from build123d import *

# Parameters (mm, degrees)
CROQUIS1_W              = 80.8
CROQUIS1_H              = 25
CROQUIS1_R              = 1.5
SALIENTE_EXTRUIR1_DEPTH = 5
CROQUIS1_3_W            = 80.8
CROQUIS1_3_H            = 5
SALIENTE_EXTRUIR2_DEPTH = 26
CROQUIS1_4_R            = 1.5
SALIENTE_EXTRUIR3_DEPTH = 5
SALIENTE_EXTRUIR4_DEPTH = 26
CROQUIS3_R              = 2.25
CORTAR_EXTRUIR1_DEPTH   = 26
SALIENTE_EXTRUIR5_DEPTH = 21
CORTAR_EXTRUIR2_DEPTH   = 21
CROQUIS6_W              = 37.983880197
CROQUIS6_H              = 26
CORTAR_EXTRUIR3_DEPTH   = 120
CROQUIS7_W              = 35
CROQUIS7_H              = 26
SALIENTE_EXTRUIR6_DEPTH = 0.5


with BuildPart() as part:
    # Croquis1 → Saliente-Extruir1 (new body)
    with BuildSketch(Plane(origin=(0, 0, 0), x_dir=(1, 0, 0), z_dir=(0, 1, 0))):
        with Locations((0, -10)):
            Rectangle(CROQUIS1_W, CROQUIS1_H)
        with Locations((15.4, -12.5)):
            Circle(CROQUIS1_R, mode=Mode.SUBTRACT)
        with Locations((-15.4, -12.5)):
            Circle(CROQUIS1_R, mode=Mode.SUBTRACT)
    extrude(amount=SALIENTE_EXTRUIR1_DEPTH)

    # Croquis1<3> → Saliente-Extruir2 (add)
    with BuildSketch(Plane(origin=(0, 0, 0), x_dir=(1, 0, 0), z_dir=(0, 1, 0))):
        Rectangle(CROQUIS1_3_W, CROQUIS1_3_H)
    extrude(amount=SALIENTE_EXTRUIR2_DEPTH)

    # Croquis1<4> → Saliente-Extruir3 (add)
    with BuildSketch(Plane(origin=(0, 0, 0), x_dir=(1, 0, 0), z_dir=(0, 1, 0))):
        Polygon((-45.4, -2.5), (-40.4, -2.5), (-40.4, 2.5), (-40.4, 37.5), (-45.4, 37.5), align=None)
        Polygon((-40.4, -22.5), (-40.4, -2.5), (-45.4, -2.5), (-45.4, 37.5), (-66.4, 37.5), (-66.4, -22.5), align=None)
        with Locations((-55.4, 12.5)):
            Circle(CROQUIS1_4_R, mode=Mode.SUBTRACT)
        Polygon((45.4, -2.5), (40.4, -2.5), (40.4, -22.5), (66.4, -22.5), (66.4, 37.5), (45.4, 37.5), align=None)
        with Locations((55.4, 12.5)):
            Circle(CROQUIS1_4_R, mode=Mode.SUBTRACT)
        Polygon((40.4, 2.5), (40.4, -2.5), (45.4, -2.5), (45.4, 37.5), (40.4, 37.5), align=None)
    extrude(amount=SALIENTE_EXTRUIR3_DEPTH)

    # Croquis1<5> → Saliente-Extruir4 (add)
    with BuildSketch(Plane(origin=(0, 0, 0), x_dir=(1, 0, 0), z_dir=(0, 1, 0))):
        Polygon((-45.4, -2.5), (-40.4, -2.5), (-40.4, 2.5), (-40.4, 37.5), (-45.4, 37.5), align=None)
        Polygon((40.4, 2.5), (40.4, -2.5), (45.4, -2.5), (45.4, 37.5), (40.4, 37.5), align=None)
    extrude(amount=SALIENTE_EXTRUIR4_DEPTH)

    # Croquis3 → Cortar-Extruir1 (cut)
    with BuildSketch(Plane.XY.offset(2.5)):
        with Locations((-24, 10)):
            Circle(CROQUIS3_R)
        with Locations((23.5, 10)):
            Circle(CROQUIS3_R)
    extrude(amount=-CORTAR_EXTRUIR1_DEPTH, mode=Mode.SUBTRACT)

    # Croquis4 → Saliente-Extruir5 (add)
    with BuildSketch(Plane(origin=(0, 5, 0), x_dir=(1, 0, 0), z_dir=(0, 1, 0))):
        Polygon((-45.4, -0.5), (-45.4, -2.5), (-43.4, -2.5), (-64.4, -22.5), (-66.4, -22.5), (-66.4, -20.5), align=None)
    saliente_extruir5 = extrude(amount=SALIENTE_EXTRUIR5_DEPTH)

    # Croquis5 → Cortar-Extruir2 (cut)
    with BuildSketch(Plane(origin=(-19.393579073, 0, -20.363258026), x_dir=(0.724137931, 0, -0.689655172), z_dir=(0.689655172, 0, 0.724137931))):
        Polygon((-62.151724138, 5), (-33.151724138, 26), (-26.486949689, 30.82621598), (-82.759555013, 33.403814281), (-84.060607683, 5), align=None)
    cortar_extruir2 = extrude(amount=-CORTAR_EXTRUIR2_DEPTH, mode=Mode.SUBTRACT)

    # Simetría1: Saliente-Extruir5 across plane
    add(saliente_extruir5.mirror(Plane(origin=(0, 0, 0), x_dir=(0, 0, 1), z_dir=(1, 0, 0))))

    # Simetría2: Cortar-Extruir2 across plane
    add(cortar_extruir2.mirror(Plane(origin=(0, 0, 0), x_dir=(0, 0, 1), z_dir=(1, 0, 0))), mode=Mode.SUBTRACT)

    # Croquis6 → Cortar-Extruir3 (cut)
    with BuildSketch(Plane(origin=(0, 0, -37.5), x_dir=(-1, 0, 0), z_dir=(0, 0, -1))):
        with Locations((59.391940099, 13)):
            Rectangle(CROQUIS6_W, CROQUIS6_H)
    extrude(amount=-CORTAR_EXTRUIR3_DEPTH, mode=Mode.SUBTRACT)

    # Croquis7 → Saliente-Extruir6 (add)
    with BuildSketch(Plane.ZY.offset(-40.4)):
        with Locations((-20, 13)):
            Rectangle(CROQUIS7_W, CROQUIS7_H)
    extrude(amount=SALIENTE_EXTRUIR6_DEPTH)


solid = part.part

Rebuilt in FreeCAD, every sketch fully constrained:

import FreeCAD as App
import Part
import Sketcher

V = App.Vector

doc = App.newDocument("Part")
body = doc.addObject("PartDesign::Body", "Body")

sketch1 = body.newObject("Sketcher::SketchObject", "Sketch")
sketch1.AttachmentSupport = (doc.getObject("XZ_Plane"), [""])
sketch1.MapMode = "FlatFace"
sketch1.addGeometry([
    Part.LineSegment(V(-40.4, -2.5, 0), V(-40.4, 22.5, 0)),
    Part.LineSegment(V(-40.4, 22.5, 0), V(40.4, 22.5, 0)),
    Part.LineSegment(V(40.4, 22.5, 0), V(40.4, -2.5, 0)),
    Part.LineSegment(V(40.4, -2.5, 0), V(-40.4, -2.5, 0)),
    Part.Circle(V(-15.4, 12.5, 0), V(0, 0, 1), 1.5),
    Part.Circle(V(15.4, 12.5, 0), V(0, 0, 1), 1.5),
], False)
sketch1.addConstraint([
    Sketcher.Constraint("Coincident", 0, 2, 1, 1),
    Sketcher.Constraint("Coincident", 1, 2, 2, 1),
    Sketcher.Constraint("Coincident", 2, 2, 3, 1),
    Sketcher.Constraint("Coincident", 3, 2, 0, 1),
    Sketcher.Constraint("Vertical", 0),
    Sketcher.Constraint("Horizontal", 1),
    Sketcher.Constraint("Vertical", 2),
    Sketcher.Constraint("Horizontal", 3),
    Sketcher.Constraint("Equal", 4, 5),
    Sketcher.Constraint("Symmetric", 4, 3, 5, 3, -2),
    Sketcher.Constraint("Diameter", 4, 3.0),
    Sketcher.Constraint("DistanceY", 0, 1, 0, 2, 25.0),
    Sketcher.Constraint("DistanceX", 1, 1, 1, 2, 80.8),
    Sketcher.Constraint("DistanceX", 0, 2, 4, 3, 25.0),
    Sketcher.Constraint("DistanceY", 4, 3, 0, 2, 10.0),
    Sketcher.Constraint("DistanceX", 5, 3, 1, 2, 25.0),
    Sketcher.Constraint("DistanceY", -1, 1, 4, 3, 12.5),
])
pad1 = body.newObject("PartDesign::Pad", "Pad")
pad1.Profile = sketch1
pad1.Length = 5
pad1.Reversed = True

sketch2 = body.newObject("Sketcher::SketchObject", "Sketch001")
sketch2.AttachmentSupport = (doc.getObject("XZ_Plane"), [""])
sketch2.MapMode = "FlatFace"
sketch2.addGeometry([
    Part.LineSegment(V(-40, -2, 0), V(-40, 2, 0)),
    Part.LineSegment(V(-40, 2, 0), V(40, 2, 0)),
    Part.LineSegment(V(40, 2, 0), V(40, -2, 0)),
    Part.LineSegment(V(40, -2, 0), V(-40, -2, 0)),
], False)
sketch2.addConstraint([
    Sketcher.Constraint("Coincident", 0, 2, 1, 1),
    Sketcher.Constraint("Coincident", 1, 2, 2, 1),
    Sketcher.Constraint("Coincident", 2, 2, 3, 1),
    Sketcher.Constraint("Coincident", 3, 2, 0, 1),
    Sketcher.Constraint("Vertical", 0),
    Sketcher.Constraint("Horizontal", 1),
    Sketcher.Constraint("Vertical", 2),
    Sketcher.Constraint("Horizontal", 3),
    Sketcher.Constraint("Symmetric", 0, 2, 2, 2, -1, 1),
    Sketcher.Constraint("DistanceY", 0, 1, 0, 2, 5.0),
    Sketcher.Constraint("DistanceX", 1, 1, 1, 2, 80.8),
])
pad2 = body.newObject("PartDesign::Pad", "Pad001")
pad2.Profile = sketch2
pad2.Length = 26
pad2.Reversed = True

sketch3 = body.newObject("Sketcher::SketchObject", "Sketch002")
sketch3.AttachmentSupport = (doc.getObject("XZ_Plane"), [""])
sketch3.MapMode = "FlatFace"
sketch3.addGeometry([
    Part.LineSegment(V(-40.4, -37.5, 0), V(-66.4, -37.5, 0)),
    Part.LineSegment(V(-66.4, -37.5, 0), V(-66.4, 22.5, 0)),
    Part.LineSegment(V(-66.4, 22.5, 0), V(-40.4, 22.5, 0)),
    Part.LineSegment(V(-40.4, 22.5, 0), V(-40.4, -37.5, 0)),
    Part.Circle(V(-55.4, -12.5, 0), V(0, 0, 1), 1.5),
    Part.LineSegment(V(40.4, 22.5, 0), V(66.4, 22.5, 0)),
    Part.LineSegment(V(66.4, 22.5, 0), V(66.4, -37.5, 0)),
    Part.LineSegment(V(66.4, -37.5, 0), V(40.4, -37.5, 0)),
    Part.LineSegment(V(40.4, -37.5, 0), V(40.4, 22.5, 0)),
    Part.Circle(V(55.4, -12.5, 0), V(0, 0, 1), 1.5),
], False)
sketch3.addConstraint([
    Sketcher.Constraint("Coincident", 0, 2, 1, 1),
    Sketcher.Constraint("Coincident", 1, 2, 2, 1),
    Sketcher.Constraint("Coincident", 2, 2, 3, 1),
    Sketcher.Constraint("Coincident", 3, 2, 0, 1),
    Sketcher.Constraint("Coincident", 5, 2, 6, 1),
    Sketcher.Constraint("Coincident", 6, 2, 7, 1),
    Sketcher.Constraint("Coincident", 7, 2, 8, 1),
    Sketcher.Constraint("Coincident", 8, 2, 5, 1),
    Sketcher.Constraint("Horizontal", 0),
    Sketcher.Constraint("Vertical", 1),
    Sketcher.Constraint("Horizontal", 2),
    Sketcher.Constraint("Vertical", 3),
    Sketcher.Constraint("Horizontal", 5),
    Sketcher.Constraint("Vertical", 6),
    Sketcher.Constraint("Horizontal", 7),
    Sketcher.Constraint("Vertical", 8),
    Sketcher.Constraint("Equal", 4, 9),
    Sketcher.Constraint("Symmetric", 4, 3, 9, 3, -2),
    Sketcher.Constraint("Symmetric", 1, 2, 5, 2, -2),
    Sketcher.Constraint("Symmetric", 3, 2, 7, 2, -2),
    Sketcher.Constraint("Diameter", 4, 3.0),
    Sketcher.Constraint("DistanceX", 0, 2, 0, 1, 26.0),
    Sketcher.Constraint("DistanceY", 1, 1, 1, 2, 60.0),
    Sketcher.Constraint("DistanceX", 0, 2, 4, 3, 11.0),
    Sketcher.Constraint("DistanceY", 0, 2, 4, 3, 25.0),
    Sketcher.Constraint("DistanceX", 4, 3, -1, 1, 55.4),
    Sketcher.Constraint("DistanceY", 4, 3, -1, 1, 12.5),
])
pad3 = body.newObject("PartDesign::Pad", "Pad002")
pad3.Profile = sketch3
pad3.Length = 5
pad3.Reversed = True

sketch4 = body.newObject("Sketcher::SketchObject", "Sketch003")
sketch4.AttachmentSupport = (doc.getObject("XZ_Plane"), [""])
sketch4.MapMode = "FlatFace"
sketch4.addGeometry([
    Part.LineSegment(V(-45, 2, 0), V(-40, 2, 0)),
    Part.LineSegment(V(-40, 2, 0), V(-40, -38, 0)),
    Part.LineSegment(V(-40, -38, 0), V(-45, -38, 0)),
    Part.LineSegment(V(-45, -38, 0), V(-45, 2, 0)),
    Part.LineSegment(V(40, 2, 0), V(45, 2, 0)),
    Part.LineSegment(V(45, 2, 0), V(45, -38, 0)),
    Part.LineSegment(V(45, -38, 0), V(40, -38, 0)),
    Part.LineSegment(V(40, -38, 0), V(40, 2, 0)),
], False)
sketch4.addConstraint([
    Sketcher.Constraint("Coincident", 0, 2, 1, 1),
    Sketcher.Constraint("Coincident", 1, 2, 2, 1),
    Sketcher.Constraint("Coincident", 2, 2, 3, 1),
    Sketcher.Constraint("Coincident", 3, 2, 0, 1),
    Sketcher.Constraint("Coincident", 4, 2, 5, 1),
    Sketcher.Constraint("Coincident", 5, 2, 6, 1),
    Sketcher.Constraint("Coincident", 6, 2, 7, 1),
    Sketcher.Constraint("Coincident", 7, 2, 4, 1),
    Sketcher.Constraint("Horizontal", 0),
    Sketcher.Constraint("Vertical", 1),
    Sketcher.Constraint("Horizontal", 2),
    Sketcher.Constraint("Vertical", 3),
    Sketcher.Constraint("Horizontal", 4),
    Sketcher.Constraint("Vertical", 5),
    Sketcher.Constraint("Horizontal", 6),
    Sketcher.Constraint("Vertical", 7),
    Sketcher.Constraint("Symmetric", 3, 2, 4, 2, -2),
    Sketcher.Constraint("Symmetric", 1, 2, 6, 2, -2),
    Sketcher.Constraint("DistanceX", 0, 1, 0, 2, 5.0),
    Sketcher.Constraint("DistanceY", 1, 2, 1, 1, 40.0),
    Sketcher.Constraint("DistanceX", 0, 2, -1, 1, 40.4),
    Sketcher.Constraint("DistanceY", -1, 1, 0, 2, 2.5),
])
pad4 = body.newObject("PartDesign::Pad", "Pad003")
pad4.Profile = sketch4
pad4.Length = 26
pad4.Reversed = True

sketch5 = body.newObject("Sketcher::SketchObject", "Sketch004")
sketch5.AttachmentSupport = (doc.getObject("XY_Plane"), [""])
sketch5.MapMode = "FlatFace"
sketch5.AttachmentOffset = App.Placement(V(0, 0, 2.5), App.Rotation())
sketch5.addGeometry([
    Part.Circle(V(-24, 10, 0), V(0, 0, 1), 2.2),
    Part.Circle(V(23.5, 10, 0), V(0, 0, 1), 2.2),
], False)
sketch5.addConstraint([
    Sketcher.Constraint("Equal", 0, 1),
    Sketcher.Constraint("Horizontal", 0, 3, 1, 3),
    Sketcher.Constraint("Diameter", 0, 4.5),
    Sketcher.Constraint("DistanceX", 0, 3, -1, 1, 24.0),
    Sketcher.Constraint("DistanceY", -1, 1, 0, 3, 10.0),
    Sketcher.Constraint("DistanceX", -1, 1, 1, 3, 23.5),
])
pocket1 = body.newObject("PartDesign::Pocket", "Pocket")
pocket1.Profile = sketch5
pocket1.Length = 26

sketch6 = body.newObject("Sketcher::SketchObject", "Sketch005")
sketch6.AttachmentSupport = (doc.getObject("XZ_Plane"), [""])
sketch6.MapMode = "FlatFace"
sketch6.AttachmentOffset = App.Placement(V(0, 0, -5), App.Rotation())
sketch6.addGeometry([
    Part.LineSegment(V(-45.4, 2.5, 0), V(-45.4, 0.5, 0)),
    Part.LineSegment(V(-45.4, 0.5, 0), V(-66.4, 20.5, 0)),
    Part.LineSegment(V(-66.4, 20.5, 0), V(-66.4, 22.5, 0)),
    Part.LineSegment(V(-66.4, 22.5, 0), V(-64.4, 22.5, 0)),
    Part.LineSegment(V(-64.4, 22.5, 0), V(-43.4, 2.5, 0)),
    Part.LineSegment(V(-43.4, 2.5, 0), V(-45.4, 2.5, 0)),
], False)
sketch6.addConstraint([
    Sketcher.Constraint("Coincident", 0, 2, 1, 1),
    Sketcher.Constraint("Coincident", 1, 2, 2, 1),
    Sketcher.Constraint("Coincident", 2, 2, 3, 1),
    Sketcher.Constraint("Coincident", 3, 2, 4, 1),
    Sketcher.Constraint("Coincident", 4, 2, 5, 1),
    Sketcher.Constraint("Coincident", 5, 2, 0, 1),
    Sketcher.Constraint("Vertical", 0),
    Sketcher.Constraint("Vertical", 2),
    Sketcher.Constraint("Horizontal", 3),
    Sketcher.Constraint("Horizontal", 5),
    Sketcher.Constraint("Parallel", 1, 4),
    Sketcher.Constraint("Equal", 3, 5),
    Sketcher.Constraint("Equal", 5, 0),
    Sketcher.Constraint("DistanceX", 3, 1, 3, 2, 2.0),
    Sketcher.Constraint("Distance", 1, 29.0),
    Sketcher.Constraint("DistanceX", 1, 2, 0, 2, 21.0),
    Sketcher.Constraint("DistanceX", 0, 2, -1, 1, 45.4),
    Sketcher.Constraint("DistanceY", -1, 1, 0, 2, 0.5),
])
pad5 = body.newObject("PartDesign::Pad", "Pad004")
pad5.Profile = sketch6
pad5.Length = 21
pad5.Reversed = True

sketch7 = body.newObject("Sketcher::SketchObject", "Sketch006")
sketch7.Placement = App.Placement(V(-19.393579, 0, -20.363258), App.Rotation(V(0.724137931, 0, -0.689655172), V(0, 0.999999999, 0), V(0.689655172, 0, 0.724137931), "ZXY"))
sketch7.addGeometry([
    Part.LineSegment(V(-62, 5, 0), V(-33, 26, 0)),
    Part.LineSegment(V(-33, 26, 0), V(-26, 31, 0)),
    Part.LineSegment(V(-26, 31, 0), V(-83, 33, 0)),
    Part.LineSegment(V(-83, 33, 0), V(-84, 5, 0)),
    Part.LineSegment(V(-84, 5, 0), V(-62, 5, 0)),
], False)
sketch7.addConstraint([
    Sketcher.Constraint("Coincident", 0, 2, 1, 1),
    Sketcher.Constraint("Coincident", 1, 2, 2, 1),
    Sketcher.Constraint("Coincident", 2, 2, 3, 1),
    Sketcher.Constraint("Coincident", 3, 2, 4, 1),
    Sketcher.Constraint("Coincident", 4, 2, 0, 1),
    Sketcher.Constraint("Horizontal", 4),
    Sketcher.Constraint("Parallel", 0, 1),
    Sketcher.Constraint("Perpendicular", 2, 3),
    Sketcher.Constraint("DistanceY", -1, 1, 0, 2, 26.0),
    Sketcher.Constraint("DistanceY", -1, 1, 3, 2, 5.0),
    Sketcher.Constraint("DistanceX", 4, 2, 0, 2, 29.0),
    Sketcher.Constraint("DistanceY", 1, 2, 2, 2, 2.577598),
    Sketcher.Constraint("Distance", 2, 56.331609),
    Sketcher.Constraint("DistanceX", 4, 1, 4, 2, 21.908884),
    Sketcher.Constraint("DistanceX", 1, 2, -1, 1, 26.48695),
])
pocket2 = body.newObject("PartDesign::Pocket", "Pocket001")
pocket2.Profile = sketch7
pocket2.Length = 21
doc.recompute()

mirrored = body.newObject("PartDesign::Mirrored", "Mirrored")
mirrored.Originals = [pad5]
mirrored.MirrorPlane = (doc.getObject("YZ_Plane"), [""])
body.Tip = mirrored
doc.recompute()

mirrored2 = body.newObject("PartDesign::Mirrored", "Mirrored001")
mirrored2.Originals = [pocket2]
mirrored2.MirrorPlane = (doc.getObject("YZ_Plane"), [""])
body.Tip = mirrored2

sketch8 = body.newObject("Sketcher::SketchObject", "Sketch007")
sketch8.AttachmentSupport = (doc.getObject("XY_Plane"), [""])
sketch8.MapMode = "FlatFace"
sketch8.AttachmentOffset = App.Placement(V(0, 0, -37.5), App.Rotation())
sketch8.addGeometry([
    Part.LineSegment(V(-40, 26, 0), V(-40, 0, 0)),
    Part.LineSegment(V(-40, 0, 0), V(-78, 0, 0)),
    Part.LineSegment(V(-78, 0, 0), V(-78, 26, 0)),
    Part.LineSegment(V(-78, 26, 0), V(-40, 26, 0)),
], False)
sketch8.addConstraint([
    Sketcher.Constraint("Coincident", 0, 2, 1, 1),
    Sketcher.Constraint("Coincident", 1, 2, 2, 1),
    Sketcher.Constraint("Coincident", 2, 2, 3, 1),
    Sketcher.Constraint("Coincident", 3, 2, 0, 1),
    Sketcher.Constraint("Vertical", 0),
    Sketcher.Constraint("Horizontal", 1),
    Sketcher.Constraint("Vertical", 2),
    Sketcher.Constraint("Horizontal", 3),
    Sketcher.Constraint("PointOnObject", 0, 2, -1),
    Sketcher.Constraint("DistanceY", 0, 2, 0, 1, 26.0),
    Sketcher.Constraint("DistanceX", 0, 2, -1, 1, 40.4),
    Sketcher.Constraint("DistanceX", 1, 2, 1, 1, 37.98388),
])
pocket3 = body.newObject("PartDesign::Pocket", "Pocket002")
pocket3.Profile = sketch8
pocket3.Length = 120
pocket3.Reversed = True

sketch9 = body.newObject("Sketcher::SketchObject", "Sketch008")
sketch9.AttachmentSupport = (doc.getObject("YZ_Plane"), [""])
sketch9.MapMode = "FlatFace"
sketch9.AttachmentOffset = App.Placement(V(0, 0, 40.4), App.Rotation())
sketch9.addGeometry([
    Part.LineSegment(V(26, -38, 0), V(0, -38, 0)),
    Part.LineSegment(V(0, -38, 0), V(0, -2, 0)),
    Part.LineSegment(V(0, -2, 0), V(26, -2, 0)),
    Part.LineSegment(V(26, -2, 0), V(26, -38, 0)),
], False)
sketch9.addConstraint([
    Sketcher.Constraint("Coincident", 0, 2, 1, 1),
    Sketcher.Constraint("Coincident", 1, 2, 2, 1),
    Sketcher.Constraint("Coincident", 2, 2, 3, 1),
    Sketcher.Constraint("Coincident", 3, 2, 0, 1),
    Sketcher.Constraint("Horizontal", 0),
    Sketcher.Constraint("Vertical", 1),
    Sketcher.Constraint("Horizontal", 2),
    Sketcher.Constraint("Vertical", 3),
    Sketcher.Constraint("PointOnObject", 0, 2, -2),
    Sketcher.Constraint("DistanceX", 0, 2, 0, 1, 26.0),
    Sketcher.Constraint("DistanceY", 1, 1, 1, 2, 35.0),
    Sketcher.Constraint("DistanceY", 0, 2, -1, 1, 37.5),
])
pad6 = body.newObject("PartDesign::Pad", "Pad005")
pad6.Profile = sketch9
pad6.Length = 0.5
pad6.Reversed = True

doc.recompute()
